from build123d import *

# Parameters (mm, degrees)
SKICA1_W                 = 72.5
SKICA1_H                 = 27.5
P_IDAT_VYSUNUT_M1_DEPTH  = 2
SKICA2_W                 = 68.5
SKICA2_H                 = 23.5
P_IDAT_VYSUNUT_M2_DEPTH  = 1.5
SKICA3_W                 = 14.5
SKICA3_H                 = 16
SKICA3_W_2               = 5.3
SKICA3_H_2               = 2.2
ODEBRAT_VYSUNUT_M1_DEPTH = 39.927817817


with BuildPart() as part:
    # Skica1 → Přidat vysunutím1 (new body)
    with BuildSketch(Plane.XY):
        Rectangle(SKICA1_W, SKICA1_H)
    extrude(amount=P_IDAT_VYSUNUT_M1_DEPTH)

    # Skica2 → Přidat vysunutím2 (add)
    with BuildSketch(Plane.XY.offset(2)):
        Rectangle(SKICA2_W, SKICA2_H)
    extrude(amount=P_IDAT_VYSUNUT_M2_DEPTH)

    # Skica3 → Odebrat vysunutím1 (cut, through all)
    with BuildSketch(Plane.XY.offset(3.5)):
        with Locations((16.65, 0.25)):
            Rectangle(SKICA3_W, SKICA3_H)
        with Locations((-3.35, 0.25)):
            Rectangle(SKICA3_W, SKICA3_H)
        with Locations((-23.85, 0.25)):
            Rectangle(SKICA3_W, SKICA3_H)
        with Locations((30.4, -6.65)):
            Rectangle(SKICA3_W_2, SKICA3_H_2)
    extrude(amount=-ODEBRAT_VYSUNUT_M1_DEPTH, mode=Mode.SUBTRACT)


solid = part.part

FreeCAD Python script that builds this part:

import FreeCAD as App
import Part
import Sketcher

V = App.Vector
Q = App.Units.Quantity


def add_polygon(sketch, points):
    """Adds a closed chain of lines whose ends are joined by coincident constraints."""
    first, n = sketch.GeometryCount, len(points)
    for a, b in zip(points, points[1:] + points[:1]):
        sketch.addGeometry(Part.LineSegment(App.Vector(*a, 0), App.Vector(*b, 0)), False)
    for i in range(n):
        sketch.addConstraint(Sketcher.Constraint("Coincident", first + i, 2, first + (i + 1) % n, 1))

doc = App.newDocument("Part")
body = doc.addObject("PartDesign::Body", "Body")

sketch1 = body.newObject("Sketcher::SketchObject", "Sketch")
sketch1.AttachmentSupport = (doc.getObject("XY_Plane"), [""])
sketch1.MapMode = "FlatFace"
add_polygon(sketch1, [(-36, 14), (-36, -14), (36, -14), (36, 14)])
sketch1.addConstraint([
    Sketcher.Constraint("Vertical", 0),
    Sketcher.Constraint("Horizontal", 1),
    Sketcher.Constraint("Vertical", 2),
    Sketcher.Constraint("Horizontal", 3),
    Sketcher.Constraint("Symmetric", 0, 2, 2, 2, -1, 1),
    Sketcher.Constraint("DistanceX", 1, 1, 1, 2, Q("72.5 mm")),
    Sketcher.Constraint("DistanceY", 0, 2, 0, 1, Q("27.5 mm")),
])
pad1 = body.newObject("PartDesign::Pad", "Pad")
pad1.Profile = sketch1
pad1.Length = 2

sketch2 = body.newObject("Sketcher::SketchObject", "Sketch001")
sketch2.AttachmentSupport = (doc.getObject("XY_Plane"), [""])
sketch2.MapMode = "FlatFace"
sketch2.AttachmentOffset = App.Placement(V(0, 0, 2), App.Rotation())
add_polygon(sketch2, [(-34, 12), (-34, -12), (34, -12), (34, 12)])
sketch2.addConstraint([
    Sketcher.Constraint("Vertical", 0),
    Sketcher.Constraint("Horizontal", 1),
    Sketcher.Constraint("Vertical", 2),
    Sketcher.Constraint("Horizontal", 3),
    Sketcher.Constraint("Symmetric", 0, 2, 2, 2, -1, 1),
    Sketcher.Constraint("DistanceX", 1, 1, 1, 2, Q("68.5 mm")),
    Sketcher.Constraint("DistanceY", 0, 2, 0, 1, Q("23.5 mm")),
])
pad2 = body.newObject("PartDesign::Pad", "Pad001")
pad2.Profile = sketch2
pad2.Length = 1.5

sketch3 = body.newObject("Sketcher::SketchObject", "Sketch002")
sketch3.AttachmentSupport = (doc.getObject("XY_Plane"), [""])
sketch3.MapMode = "FlatFace"
sketch3.AttachmentOffset = App.Placement(V(0, 0, 3.5), App.Rotation())
add_polygon(sketch3, [(9.4, 8.2), (9.4, -7.8), (23.9, -7.8), (23.9, 8.2)])
add_polygon(sketch3, [(-10.6, 8.2), (-10.6, -7.8), (3.9, -7.8), (3.9, 8.2)])
add_polygon(sketch3, [(-31.1, 8.2), (-31.1, -7.8), (-16.6, -7.8), (-16.6, 8.2)])
add_polygon(sketch3, [(27.8, -5.5), (27.8, -7.8), (33, -7.8), (33, -5.5)])
sketch3.addConstraint([
    Sketcher.Constraint("Vertical", 0),
    Sketcher.Constraint("Horizontal", 1),
    Sketcher.Constraint("Vertical", 2),
    Sketcher.Constraint("Horizontal", 3),
    Sketcher.Constraint("Vertical", 4),
    Sketcher.Constraint("Horizontal", 5),
    Sketcher.Constraint("Vertical", 6),
    Sketcher.Constraint("Horizontal", 7),
    Sketcher.Constraint("Vertical", 8),
    Sketcher.Constraint("Horizontal", 9),
    Sketcher.Constraint("Vertical", 10),
    Sketcher.Constraint("Horizontal", 11),
    Sketcher.Constraint("Vertical", 12),
    Sketcher.Constraint("Horizontal", 13),
    Sketcher.Constraint("Vertical", 14),
    Sketcher.Constraint("Horizontal", 15),
    Sketcher.Constraint("Horizontal", 1, 2, 4, 2),
    Sketcher.Constraint("Horizontal", 3, 2, 6, 2),
    Sketcher.Constraint("Horizontal", 5, 2, 8, 2),
    Sketcher.Constraint("Horizontal", 7, 2, 10, 2),
    Sketcher.Constraint("Horizontal", 9, 2, 12, 2),
    Sketcher.Constraint("Equal", 3, 5),
    Sketcher.Constraint("Equal", 7, 9),
    Sketcher.Constraint("DistanceY", 0, 2, 0, 1, Q("16 mm")),
    Sketcher.Constraint("DistanceX", 1, 1, 1, 2, Q("14.5 mm")),
    Sketcher.Constraint("DistanceX", 13, 1, 13, 2, Q("5.3 mm")),
    Sketcher.Constraint("DistanceY", 12, 2, 12, 1, Q("2.2 mm")),
    Sketcher.Constraint("DistanceX", 4, 2, 0, 2, Q("20 mm")),
    Sketcher.Constraint("DistanceX", 8, 2, 5, 2, Q("35 mm")),
    Sketcher.Constraint("DistanceX", -1, 1, 0, 2, Q("9.4 mm")),
    Sketcher.Constraint("DistanceY", 0, 2, -1, 1, Q("7.75 mm")),
    Sketcher.Constraint("DistanceX", -1, 1, 12, 2, Q("27.75 mm")),
])
pocket1 = body.newObject("PartDesign::Pocket", "Pocket")
pocket1.Profile = sketch3
pocket1.Type = "ThroughAll"

doc.recompute()
